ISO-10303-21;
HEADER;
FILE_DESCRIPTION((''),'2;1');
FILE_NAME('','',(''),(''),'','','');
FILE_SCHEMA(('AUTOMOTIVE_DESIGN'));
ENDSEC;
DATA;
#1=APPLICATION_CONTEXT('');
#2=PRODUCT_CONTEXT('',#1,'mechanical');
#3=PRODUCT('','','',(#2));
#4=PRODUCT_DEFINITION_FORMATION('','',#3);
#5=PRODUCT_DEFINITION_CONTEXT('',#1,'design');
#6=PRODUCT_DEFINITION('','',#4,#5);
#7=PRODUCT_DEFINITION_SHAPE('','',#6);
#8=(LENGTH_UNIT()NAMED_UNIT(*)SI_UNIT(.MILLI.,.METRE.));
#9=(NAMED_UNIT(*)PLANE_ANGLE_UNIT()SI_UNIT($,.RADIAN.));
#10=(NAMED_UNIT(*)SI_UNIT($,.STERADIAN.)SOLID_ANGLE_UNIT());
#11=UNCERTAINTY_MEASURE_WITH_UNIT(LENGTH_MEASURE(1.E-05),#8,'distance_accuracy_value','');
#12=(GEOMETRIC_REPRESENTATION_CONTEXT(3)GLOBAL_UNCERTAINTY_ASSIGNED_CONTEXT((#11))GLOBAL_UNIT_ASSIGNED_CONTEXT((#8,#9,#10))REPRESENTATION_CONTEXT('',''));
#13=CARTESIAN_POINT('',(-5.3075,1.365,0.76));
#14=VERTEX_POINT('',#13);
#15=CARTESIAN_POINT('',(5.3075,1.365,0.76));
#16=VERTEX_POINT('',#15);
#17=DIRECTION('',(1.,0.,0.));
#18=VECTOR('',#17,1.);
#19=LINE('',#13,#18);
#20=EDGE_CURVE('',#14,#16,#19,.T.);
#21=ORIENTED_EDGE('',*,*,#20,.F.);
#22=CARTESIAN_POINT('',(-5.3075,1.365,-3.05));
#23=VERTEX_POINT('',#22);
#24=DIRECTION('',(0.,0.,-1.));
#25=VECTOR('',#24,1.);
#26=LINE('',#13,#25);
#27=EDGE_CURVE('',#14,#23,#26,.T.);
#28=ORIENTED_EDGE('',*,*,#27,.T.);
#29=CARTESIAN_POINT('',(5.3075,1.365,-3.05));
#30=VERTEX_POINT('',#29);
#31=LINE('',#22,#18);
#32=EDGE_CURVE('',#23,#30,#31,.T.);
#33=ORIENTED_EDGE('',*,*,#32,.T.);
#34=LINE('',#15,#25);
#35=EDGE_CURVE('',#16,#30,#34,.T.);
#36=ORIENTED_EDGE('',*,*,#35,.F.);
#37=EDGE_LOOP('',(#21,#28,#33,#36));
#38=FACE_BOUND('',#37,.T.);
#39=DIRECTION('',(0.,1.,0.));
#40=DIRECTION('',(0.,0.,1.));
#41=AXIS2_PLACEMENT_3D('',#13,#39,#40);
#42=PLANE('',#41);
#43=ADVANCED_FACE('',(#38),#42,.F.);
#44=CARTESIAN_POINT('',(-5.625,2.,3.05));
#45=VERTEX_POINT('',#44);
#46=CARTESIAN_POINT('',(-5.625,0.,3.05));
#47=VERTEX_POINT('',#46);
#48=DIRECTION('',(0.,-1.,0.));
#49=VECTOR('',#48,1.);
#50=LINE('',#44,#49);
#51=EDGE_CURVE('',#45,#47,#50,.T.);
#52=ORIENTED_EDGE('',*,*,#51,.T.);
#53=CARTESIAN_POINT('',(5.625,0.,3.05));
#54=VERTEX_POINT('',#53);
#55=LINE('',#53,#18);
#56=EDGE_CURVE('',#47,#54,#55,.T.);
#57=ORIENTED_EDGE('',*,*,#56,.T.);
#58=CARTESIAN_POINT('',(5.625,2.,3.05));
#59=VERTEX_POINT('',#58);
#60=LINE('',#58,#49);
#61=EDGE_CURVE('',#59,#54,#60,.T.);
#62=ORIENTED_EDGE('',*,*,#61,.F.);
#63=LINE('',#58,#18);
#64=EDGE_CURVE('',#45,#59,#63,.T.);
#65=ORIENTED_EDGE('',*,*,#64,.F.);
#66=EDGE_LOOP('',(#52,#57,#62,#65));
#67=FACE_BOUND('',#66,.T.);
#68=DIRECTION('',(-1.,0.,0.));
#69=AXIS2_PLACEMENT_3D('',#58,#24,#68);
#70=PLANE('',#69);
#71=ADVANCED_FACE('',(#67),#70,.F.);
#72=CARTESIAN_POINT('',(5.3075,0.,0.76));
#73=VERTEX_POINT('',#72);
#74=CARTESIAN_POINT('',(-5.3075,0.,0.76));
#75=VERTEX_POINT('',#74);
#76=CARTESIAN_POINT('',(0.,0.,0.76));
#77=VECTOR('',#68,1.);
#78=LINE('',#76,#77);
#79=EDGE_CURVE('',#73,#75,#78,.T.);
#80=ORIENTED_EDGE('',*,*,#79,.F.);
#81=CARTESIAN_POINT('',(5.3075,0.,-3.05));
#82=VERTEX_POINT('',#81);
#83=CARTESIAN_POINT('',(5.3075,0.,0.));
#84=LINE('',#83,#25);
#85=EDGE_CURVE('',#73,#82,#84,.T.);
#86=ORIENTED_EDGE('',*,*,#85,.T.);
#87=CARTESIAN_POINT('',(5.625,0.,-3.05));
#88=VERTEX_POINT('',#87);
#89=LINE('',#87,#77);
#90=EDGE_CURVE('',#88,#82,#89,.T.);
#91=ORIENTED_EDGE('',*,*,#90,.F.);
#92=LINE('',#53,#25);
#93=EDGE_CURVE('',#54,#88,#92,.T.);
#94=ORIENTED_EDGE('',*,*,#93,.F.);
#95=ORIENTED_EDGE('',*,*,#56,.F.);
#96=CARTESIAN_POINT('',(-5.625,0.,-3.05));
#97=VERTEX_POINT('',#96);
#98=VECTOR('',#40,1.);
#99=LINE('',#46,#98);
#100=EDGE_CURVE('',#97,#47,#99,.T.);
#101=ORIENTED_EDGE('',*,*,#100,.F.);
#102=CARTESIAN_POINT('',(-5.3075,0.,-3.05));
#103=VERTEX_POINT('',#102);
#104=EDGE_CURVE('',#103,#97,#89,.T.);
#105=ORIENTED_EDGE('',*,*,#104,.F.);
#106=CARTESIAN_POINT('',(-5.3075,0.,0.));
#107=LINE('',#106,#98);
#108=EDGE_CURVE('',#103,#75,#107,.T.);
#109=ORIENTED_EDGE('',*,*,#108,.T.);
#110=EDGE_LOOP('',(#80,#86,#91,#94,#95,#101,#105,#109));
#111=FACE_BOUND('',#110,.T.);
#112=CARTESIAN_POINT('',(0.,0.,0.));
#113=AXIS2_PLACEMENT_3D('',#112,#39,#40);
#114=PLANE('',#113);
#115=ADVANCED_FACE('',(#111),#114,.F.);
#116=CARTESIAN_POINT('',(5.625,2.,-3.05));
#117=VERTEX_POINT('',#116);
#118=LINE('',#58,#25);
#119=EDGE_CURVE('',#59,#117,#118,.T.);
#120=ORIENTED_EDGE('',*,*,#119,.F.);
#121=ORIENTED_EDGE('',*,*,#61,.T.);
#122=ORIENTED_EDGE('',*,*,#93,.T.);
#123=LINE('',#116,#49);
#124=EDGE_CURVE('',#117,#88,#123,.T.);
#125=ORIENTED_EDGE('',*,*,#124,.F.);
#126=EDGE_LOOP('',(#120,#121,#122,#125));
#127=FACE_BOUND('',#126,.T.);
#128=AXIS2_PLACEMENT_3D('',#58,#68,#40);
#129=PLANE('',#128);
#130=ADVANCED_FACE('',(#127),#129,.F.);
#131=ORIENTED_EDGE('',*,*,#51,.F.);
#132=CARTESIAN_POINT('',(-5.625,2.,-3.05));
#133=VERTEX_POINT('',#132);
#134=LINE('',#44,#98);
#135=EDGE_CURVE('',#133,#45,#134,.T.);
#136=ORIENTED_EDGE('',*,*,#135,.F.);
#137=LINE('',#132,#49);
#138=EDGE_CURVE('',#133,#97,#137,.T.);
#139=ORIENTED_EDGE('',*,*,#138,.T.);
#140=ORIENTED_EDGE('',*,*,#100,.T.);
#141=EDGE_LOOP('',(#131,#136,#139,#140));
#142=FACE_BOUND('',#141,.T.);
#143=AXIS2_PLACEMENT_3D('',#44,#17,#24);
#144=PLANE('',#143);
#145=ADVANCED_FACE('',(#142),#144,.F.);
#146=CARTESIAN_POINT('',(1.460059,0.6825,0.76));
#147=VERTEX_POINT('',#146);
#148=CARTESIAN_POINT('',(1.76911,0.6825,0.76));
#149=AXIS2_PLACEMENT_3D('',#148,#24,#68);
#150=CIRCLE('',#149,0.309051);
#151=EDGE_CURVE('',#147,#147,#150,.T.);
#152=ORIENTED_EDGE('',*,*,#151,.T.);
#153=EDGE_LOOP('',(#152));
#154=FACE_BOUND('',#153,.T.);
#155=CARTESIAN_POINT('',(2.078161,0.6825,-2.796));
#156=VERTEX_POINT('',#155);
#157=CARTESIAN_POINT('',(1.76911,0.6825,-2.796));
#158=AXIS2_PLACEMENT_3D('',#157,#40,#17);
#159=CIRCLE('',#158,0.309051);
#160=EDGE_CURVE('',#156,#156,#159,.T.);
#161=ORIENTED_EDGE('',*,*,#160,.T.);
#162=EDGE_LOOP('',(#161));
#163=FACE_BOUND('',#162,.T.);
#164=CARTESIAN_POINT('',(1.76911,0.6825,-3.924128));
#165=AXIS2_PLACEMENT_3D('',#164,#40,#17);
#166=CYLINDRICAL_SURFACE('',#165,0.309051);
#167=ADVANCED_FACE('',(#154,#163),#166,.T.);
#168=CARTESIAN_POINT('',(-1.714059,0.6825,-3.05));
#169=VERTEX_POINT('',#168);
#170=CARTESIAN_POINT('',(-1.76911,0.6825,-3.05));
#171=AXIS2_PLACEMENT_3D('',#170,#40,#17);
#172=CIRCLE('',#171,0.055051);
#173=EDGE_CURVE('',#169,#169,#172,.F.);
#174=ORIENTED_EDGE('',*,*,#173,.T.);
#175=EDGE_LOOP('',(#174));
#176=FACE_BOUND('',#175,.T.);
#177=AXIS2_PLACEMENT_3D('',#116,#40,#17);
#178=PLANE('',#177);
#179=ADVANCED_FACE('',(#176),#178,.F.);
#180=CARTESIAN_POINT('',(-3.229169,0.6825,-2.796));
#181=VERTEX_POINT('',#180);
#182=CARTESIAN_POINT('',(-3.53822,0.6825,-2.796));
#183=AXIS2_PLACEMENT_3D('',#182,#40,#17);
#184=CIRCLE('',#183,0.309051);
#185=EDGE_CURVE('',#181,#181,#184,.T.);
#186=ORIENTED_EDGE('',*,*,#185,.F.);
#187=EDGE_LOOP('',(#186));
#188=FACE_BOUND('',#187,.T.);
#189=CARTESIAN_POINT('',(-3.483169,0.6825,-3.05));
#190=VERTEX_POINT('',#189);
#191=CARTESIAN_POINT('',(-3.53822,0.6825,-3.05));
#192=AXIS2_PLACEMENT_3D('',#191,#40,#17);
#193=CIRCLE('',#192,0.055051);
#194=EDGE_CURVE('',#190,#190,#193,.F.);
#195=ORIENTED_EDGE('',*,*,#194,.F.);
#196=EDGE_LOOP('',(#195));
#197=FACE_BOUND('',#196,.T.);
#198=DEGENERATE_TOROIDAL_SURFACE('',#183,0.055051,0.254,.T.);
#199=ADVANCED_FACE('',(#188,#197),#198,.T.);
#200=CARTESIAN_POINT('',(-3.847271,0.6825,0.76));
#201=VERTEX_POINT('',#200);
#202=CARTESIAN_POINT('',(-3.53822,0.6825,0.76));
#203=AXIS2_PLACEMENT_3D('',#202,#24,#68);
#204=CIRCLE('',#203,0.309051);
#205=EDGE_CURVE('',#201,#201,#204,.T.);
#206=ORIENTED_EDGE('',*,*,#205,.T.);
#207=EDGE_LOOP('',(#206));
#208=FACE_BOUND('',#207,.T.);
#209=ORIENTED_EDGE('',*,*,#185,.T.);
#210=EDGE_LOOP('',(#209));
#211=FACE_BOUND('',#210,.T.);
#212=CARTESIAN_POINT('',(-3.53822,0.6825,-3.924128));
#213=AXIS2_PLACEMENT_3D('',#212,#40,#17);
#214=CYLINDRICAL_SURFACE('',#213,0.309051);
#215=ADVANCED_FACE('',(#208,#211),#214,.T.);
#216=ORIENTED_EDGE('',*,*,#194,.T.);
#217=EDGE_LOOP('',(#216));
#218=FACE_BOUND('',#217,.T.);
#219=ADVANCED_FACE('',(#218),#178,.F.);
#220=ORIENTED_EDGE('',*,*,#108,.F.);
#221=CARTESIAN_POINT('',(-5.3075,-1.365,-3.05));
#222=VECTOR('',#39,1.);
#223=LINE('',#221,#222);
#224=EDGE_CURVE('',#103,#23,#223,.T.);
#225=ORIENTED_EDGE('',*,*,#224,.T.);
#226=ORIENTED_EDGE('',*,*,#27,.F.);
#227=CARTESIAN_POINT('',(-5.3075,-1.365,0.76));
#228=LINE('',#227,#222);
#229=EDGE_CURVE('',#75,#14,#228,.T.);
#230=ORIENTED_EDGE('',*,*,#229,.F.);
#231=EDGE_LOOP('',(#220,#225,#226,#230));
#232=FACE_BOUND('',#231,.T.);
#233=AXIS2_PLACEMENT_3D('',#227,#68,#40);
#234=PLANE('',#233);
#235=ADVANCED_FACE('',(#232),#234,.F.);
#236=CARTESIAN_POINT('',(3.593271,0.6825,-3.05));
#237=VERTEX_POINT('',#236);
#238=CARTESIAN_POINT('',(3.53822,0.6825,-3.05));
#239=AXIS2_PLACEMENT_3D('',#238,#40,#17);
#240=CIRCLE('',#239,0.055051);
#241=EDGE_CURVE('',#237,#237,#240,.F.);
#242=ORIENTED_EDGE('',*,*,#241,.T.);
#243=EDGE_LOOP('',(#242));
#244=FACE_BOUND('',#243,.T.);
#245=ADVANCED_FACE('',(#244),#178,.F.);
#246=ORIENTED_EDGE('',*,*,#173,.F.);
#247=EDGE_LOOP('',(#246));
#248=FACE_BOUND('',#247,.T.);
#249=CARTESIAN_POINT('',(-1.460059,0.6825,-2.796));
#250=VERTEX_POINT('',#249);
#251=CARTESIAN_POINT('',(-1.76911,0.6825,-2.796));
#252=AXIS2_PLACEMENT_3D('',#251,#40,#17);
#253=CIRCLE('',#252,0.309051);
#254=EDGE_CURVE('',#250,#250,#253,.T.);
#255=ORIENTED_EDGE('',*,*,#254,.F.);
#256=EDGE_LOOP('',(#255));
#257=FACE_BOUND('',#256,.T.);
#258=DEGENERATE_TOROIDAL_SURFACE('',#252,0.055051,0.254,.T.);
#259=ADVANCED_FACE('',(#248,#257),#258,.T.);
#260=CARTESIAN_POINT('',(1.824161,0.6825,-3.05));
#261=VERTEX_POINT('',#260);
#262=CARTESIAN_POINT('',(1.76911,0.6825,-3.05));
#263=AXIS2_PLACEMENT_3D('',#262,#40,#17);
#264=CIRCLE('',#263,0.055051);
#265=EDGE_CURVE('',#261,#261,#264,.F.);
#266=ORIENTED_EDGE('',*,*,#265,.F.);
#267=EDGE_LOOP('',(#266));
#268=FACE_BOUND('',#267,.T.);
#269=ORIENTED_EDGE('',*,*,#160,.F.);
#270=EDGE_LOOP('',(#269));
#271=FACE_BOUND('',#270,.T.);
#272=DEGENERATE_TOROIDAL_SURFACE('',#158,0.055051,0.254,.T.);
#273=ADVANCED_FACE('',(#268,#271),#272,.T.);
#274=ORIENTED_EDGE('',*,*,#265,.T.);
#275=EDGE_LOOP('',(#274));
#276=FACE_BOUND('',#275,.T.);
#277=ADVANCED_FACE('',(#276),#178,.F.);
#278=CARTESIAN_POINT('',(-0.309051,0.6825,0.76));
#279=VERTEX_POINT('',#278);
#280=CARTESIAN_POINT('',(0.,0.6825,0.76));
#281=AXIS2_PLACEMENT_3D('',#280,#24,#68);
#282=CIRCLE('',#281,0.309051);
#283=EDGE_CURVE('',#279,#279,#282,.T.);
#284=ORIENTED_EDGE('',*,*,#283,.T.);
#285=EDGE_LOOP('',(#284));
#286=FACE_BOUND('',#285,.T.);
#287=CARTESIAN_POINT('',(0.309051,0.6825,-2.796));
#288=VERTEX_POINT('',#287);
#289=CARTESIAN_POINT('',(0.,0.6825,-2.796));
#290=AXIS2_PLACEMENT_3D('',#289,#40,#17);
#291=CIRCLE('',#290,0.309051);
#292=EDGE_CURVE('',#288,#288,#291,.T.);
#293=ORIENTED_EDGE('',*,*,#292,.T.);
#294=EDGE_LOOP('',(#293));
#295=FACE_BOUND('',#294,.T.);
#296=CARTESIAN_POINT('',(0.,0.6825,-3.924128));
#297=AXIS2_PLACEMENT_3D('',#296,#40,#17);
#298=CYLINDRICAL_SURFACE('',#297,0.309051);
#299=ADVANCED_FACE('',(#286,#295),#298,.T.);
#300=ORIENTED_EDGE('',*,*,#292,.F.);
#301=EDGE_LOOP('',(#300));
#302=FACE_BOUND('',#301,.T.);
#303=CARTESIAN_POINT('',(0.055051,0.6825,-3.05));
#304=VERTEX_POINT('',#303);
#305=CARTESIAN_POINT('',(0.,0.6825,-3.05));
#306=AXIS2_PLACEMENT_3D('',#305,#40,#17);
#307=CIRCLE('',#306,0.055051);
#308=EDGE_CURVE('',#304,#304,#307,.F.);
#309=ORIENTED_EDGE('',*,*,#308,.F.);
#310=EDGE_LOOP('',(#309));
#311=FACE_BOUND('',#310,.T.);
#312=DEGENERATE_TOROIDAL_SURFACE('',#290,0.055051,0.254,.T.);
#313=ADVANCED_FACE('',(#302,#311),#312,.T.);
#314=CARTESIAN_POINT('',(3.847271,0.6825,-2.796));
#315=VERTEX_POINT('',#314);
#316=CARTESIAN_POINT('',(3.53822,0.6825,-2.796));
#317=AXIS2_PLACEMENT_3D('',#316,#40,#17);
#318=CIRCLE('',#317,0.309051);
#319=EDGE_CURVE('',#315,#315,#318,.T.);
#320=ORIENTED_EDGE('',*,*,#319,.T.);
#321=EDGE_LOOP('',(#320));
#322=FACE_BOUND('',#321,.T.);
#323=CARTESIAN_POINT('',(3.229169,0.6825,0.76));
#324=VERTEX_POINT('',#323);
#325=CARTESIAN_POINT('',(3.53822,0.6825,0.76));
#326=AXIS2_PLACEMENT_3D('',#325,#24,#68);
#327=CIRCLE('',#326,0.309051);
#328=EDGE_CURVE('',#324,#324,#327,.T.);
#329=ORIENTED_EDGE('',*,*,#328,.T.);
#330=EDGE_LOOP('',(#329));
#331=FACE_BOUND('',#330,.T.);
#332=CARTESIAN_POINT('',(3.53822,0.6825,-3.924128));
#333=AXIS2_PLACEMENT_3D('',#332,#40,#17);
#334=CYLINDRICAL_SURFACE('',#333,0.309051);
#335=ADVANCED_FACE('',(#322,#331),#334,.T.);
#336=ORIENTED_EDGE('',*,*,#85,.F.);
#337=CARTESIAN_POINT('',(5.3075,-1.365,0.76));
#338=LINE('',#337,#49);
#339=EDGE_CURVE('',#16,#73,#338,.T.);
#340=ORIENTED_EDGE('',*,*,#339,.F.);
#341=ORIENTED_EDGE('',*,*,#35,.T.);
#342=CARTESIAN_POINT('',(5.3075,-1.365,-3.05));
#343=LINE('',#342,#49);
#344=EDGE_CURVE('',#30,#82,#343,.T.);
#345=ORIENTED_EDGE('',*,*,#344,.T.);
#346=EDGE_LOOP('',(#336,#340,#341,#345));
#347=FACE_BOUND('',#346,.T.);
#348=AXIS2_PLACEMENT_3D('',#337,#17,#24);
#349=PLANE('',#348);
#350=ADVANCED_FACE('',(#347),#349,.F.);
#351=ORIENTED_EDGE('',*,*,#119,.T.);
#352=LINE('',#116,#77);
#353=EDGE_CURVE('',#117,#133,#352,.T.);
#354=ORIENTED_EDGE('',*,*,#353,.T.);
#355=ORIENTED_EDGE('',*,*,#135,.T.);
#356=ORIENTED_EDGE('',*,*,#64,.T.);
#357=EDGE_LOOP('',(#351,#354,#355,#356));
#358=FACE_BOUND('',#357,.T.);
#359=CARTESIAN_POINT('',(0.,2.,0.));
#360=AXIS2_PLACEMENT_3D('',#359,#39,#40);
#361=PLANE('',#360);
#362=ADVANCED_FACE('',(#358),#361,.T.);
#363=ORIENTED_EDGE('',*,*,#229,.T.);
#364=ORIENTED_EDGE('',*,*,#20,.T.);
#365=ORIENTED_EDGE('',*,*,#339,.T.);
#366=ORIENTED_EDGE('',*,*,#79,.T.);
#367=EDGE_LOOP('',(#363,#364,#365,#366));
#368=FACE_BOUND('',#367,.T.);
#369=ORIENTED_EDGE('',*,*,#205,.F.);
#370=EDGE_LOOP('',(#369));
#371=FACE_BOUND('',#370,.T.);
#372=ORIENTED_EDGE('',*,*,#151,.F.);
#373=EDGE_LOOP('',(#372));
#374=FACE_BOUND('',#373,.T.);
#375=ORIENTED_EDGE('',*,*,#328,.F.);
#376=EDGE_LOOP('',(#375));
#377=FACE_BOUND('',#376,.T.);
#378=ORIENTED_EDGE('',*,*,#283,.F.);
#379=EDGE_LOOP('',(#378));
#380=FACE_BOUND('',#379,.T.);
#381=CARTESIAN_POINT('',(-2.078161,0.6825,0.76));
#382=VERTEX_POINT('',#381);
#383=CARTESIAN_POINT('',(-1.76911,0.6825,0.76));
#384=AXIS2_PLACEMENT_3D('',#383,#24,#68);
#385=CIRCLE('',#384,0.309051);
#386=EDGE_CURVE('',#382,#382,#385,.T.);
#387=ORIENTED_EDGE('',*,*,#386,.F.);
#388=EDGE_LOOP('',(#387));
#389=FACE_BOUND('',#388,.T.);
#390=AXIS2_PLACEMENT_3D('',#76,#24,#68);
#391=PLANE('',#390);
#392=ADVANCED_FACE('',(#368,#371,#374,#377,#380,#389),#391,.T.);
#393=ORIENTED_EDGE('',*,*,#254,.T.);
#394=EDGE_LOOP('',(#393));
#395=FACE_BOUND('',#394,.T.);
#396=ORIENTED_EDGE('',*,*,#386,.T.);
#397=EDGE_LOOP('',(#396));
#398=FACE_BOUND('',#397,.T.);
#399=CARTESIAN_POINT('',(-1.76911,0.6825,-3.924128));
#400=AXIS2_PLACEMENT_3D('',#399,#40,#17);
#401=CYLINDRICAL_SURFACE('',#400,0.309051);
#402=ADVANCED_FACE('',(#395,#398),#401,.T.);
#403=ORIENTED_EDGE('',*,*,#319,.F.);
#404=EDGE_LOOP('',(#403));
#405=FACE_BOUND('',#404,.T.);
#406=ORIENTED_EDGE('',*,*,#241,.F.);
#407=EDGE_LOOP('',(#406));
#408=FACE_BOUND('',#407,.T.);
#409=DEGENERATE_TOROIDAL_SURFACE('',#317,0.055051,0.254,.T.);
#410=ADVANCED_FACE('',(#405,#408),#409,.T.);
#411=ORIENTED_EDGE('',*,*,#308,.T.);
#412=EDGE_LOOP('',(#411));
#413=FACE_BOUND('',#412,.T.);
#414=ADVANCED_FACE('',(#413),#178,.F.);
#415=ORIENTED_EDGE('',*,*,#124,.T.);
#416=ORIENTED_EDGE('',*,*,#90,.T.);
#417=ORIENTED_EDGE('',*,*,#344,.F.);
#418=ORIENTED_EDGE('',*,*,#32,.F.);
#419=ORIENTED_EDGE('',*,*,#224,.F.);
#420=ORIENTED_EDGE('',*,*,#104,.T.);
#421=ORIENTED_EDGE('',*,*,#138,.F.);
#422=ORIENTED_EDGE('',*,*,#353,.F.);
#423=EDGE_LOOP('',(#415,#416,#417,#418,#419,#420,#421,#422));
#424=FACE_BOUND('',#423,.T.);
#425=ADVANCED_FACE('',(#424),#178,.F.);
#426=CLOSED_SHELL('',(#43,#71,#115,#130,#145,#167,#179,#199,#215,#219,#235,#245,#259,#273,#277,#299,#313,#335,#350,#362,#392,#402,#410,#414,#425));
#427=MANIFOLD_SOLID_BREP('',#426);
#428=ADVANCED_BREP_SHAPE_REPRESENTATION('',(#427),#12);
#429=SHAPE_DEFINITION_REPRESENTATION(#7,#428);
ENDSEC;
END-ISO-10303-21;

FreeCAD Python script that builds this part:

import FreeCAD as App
import Part
import Sketcher


def edges_at(feature, points):
    """Names of the edges that pass closest to the given points."""
    edges = feature.Shape.Edges
    near = lambda p: min(range(len(edges)), key=lambda i: edges[i].distToShape(Part.Vertex(*p))[0])
    return sorted({f"Edge{near(p) + 1}" for p in points})


def add_polygon(sketch, points):
    """Adds a closed chain of lines whose ends are joined by coincident constraints."""
    first, n = sketch.GeometryCount, len(points)
    for a, b in zip(points, points[1:] + points[:1]):
        sketch.addGeometry(Part.LineSegment(App.Vector(*a, 0), App.Vector(*b, 0)), False)
    for i in range(n):
        sketch.addConstraint(Sketcher.Constraint("Coincident", first + i, 2, first + (i + 1) % n, 1))

doc = App.newDocument("Part")
body = doc.addObject("PartDesign::Body", "Body")

# Sketch on XZ plane
sketch1 = body.newObject("Sketcher::SketchObject", "Sketch")
sketch1.AttachmentSupport = (doc.getObject("XZ_Plane"), [""])
sketch1.MapMode = "FlatFace"
add_polygon(sketch1, [(-6, -3), (-6, 3), (6, 3), (6, -3)])  # lines 0-3
sketch1.addConstraint(Sketcher.Constraint("Vertical", 0))
sketch1.addConstraint(Sketcher.Constraint("Horizontal", 1))
sketch1.addConstraint(Sketcher.Constraint("Vertical", 2))
sketch1.addConstraint(Sketcher.Constraint("Horizontal", 3))
sketch1.addConstraint(Sketcher.Constraint("Symmetric", 0, 2, 2, 2, -1, 1))
sketch1.addConstraint(Sketcher.Constraint("DistanceY", 0, 1, 0, 2, 6.1))
sketch1.addConstraint(Sketcher.Constraint("DistanceX", 1, 1, 1, 2, 11.25))
pad1 = body.newObject("PartDesign::Pad", "Pad")
pad1.Profile = sketch1
pad1.Length = 2
pad1.Reversed = True

# Sketch on XY plane
sketch2 = body.newObject("Sketcher::SketchObject", "Sketch001")
sketch2.AttachmentSupport = (doc.getObject("XY_Plane"), [""])
sketch2.MapMode = "FlatFace"
sketch2.AttachmentOffset = App.Placement(App.Vector(0, 0, -3.05), App.Rotation())
add_polygon(sketch2, [(5.3, 1.4), (5.3, -1.4), (-5.3, -1.4), (-5.3, 1.4)])  # lines 0-3
sketch2.addConstraint(Sketcher.Constraint("Vertical", 0))
sketch2.addConstraint(Sketcher.Constraint("Horizontal", 1))
sketch2.addConstraint(Sketcher.Constraint("Vertical", 2))
sketch2.addConstraint(Sketcher.Constraint("Horizontal", 3))
sketch2.addConstraint(Sketcher.Constraint("Symmetric", 0, 2, 2, 2, -1, 1))
sketch2.addConstraint(Sketcher.Constraint("DistanceY", 0, 2, 0, 1, 2.73))
sketch2.addConstraint(Sketcher.Constraint("DistanceX", 1, 2, 1, 1, 10.615))
pocket1 = body.newObject("PartDesign::Pocket", "Pocket")
pocket1.Profile = sketch2
pocket1.Length = 3.81
pocket1.Reversed = True

# Sketch on XY plane
sketch3 = body.newObject("Sketcher::SketchObject", "Sketch002")
sketch3.AttachmentSupport = (doc.getObject("XY_Plane"), [""])
sketch3.MapMode = "FlatFace"
sketch3.AttachmentOffset = App.Placement(App.Vector(0, 0, 0.76), App.Rotation())
sketch3.addGeometry(Part.Circle(App.Vector(3.54, 0.68, 0), App.Vector(0, 0, 1), 0.31), False)
sketch3.addGeometry(Part.Circle(App.Vector(1.77, 0.68, 0), App.Vector(0, 0, 1), 0.31), False)
sketch3.addGeometry(Part.Circle(App.Vector(0, 0.68, 0), App.Vector(0, 0, 1), 0.31), False)
sketch3.addGeometry(Part.Circle(App.Vector(-1.77, 0.68, 0), App.Vector(0, 0, 1), 0.31), False)
sketch3.addGeometry(Part.Circle(App.Vector(-3.54, 0.68, 0), App.Vector(0, 0, 1), 0.31), False)
sketch3.addConstraint(Sketcher.Constraint("Equal", 0, 1))
sketch3.addConstraint(Sketcher.Constraint("Equal", 1, 2))
sketch3.addConstraint(Sketcher.Constraint("Equal", 2, 3))
sketch3.addConstraint(Sketcher.Constraint("Equal", 3, 4))
sketch3.addConstraint(Sketcher.Constraint("Symmetric", 1, 3, 3, 3, -2))
sketch3.addConstraint(Sketcher.Constraint("Symmetric", 0, 3, 4, 3, -2))
sketch3.addConstraint(Sketcher.Constraint("PointOnObject", 2, 3, -2))
sketch3.addConstraint(Sketcher.Constraint("Horizontal", 0, 3, 1, 3))
sketch3.addConstraint(Sketcher.Constraint("Horizontal", 1, 3, 2, 3))
sketch3.addConstraint(Sketcher.Constraint("Diameter", 0, 0.618102))
sketch3.addConstraint(Sketcher.Constraint("DistanceY", -1, 1, 0, 3, 0.6825))
sketch3.addConstraint(Sketcher.Constraint("DistanceX", -1, 1, 0, 3, 3.53822))
sketch3.addConstraint(Sketcher.Constraint("DistanceX", -1, 1, 1, 3, 1.76911))
pad2 = body.newObject("PartDesign::Pad", "Pad001")
pad2.Profile = sketch3
pad2.Length = 3.81
pad2.Reversed = True
doc.recompute()

fillet = body.newObject("PartDesign::Fillet", "Fillet")
fillet.Base = (pad2, edges_at(pad2, [
    (3.229, 0.682, -3.05),
    (1.46, 0.682, -3.05),
    (-0.309, 0.682, -3.05),
    (-2.078, 0.682, -3.05),
    (-3.847, 0.682, -3.05),
]))
fillet.Radius = 0.254

doc.recompute()
